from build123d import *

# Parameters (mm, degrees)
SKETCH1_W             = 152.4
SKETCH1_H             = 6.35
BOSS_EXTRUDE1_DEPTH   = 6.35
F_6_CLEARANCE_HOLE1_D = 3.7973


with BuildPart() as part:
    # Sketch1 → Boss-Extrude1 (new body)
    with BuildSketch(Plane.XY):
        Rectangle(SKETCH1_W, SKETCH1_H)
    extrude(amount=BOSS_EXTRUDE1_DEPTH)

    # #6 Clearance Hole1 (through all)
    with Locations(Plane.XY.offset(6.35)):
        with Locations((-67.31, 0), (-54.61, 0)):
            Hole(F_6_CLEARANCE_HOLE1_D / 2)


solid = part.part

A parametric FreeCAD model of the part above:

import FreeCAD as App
import Part
import Sketcher

V = App.Vector
Q = App.Units.Quantity


def add_polygon(sketch, points):
    """Adds a closed chain of lines whose ends are joined by coincident constraints."""
    first, n = sketch.GeometryCount, len(points)
    for a, b in zip(points, points[1:] + points[:1]):
        sketch.addGeometry(Part.LineSegment(App.Vector(*a, 0), App.Vector(*b, 0)), False)
    for i in range(n):
        sketch.addConstraint(Sketcher.Constraint("Coincident", first + i, 2, first + (i + 1) % n, 1))

doc = App.newDocument("Part")
body = doc.addObject("PartDesign::Body", "Body")

# Sketch on XY plane
sketch1 = body.newObject("Sketcher::SketchObject", "Sketch")
sketch1.AttachmentSupport = (doc.getObject("XY_Plane"), [""])
sketch1.MapMode = "FlatFace"
add_polygon(sketch1, [(-76, 3), (-76, -3), (76, -3), (76, 3)])  # lines 0-3
sketch1.addConstraint([
    Sketcher.Constraint("Vertical", 0),
    Sketcher.Constraint("Horizontal", 1),
    Sketcher.Constraint("Vertical", 2),
    Sketcher.Constraint("Horizontal", 3),
    Sketcher.Constraint("Symmetric", 0, 2, 2, 2, -1, 1),
    Sketcher.Constraint("DistanceX", 1, 1, 1, 2, Q("6 in")),
    Sketcher.Constraint("DistanceY", 0, 2, 0, 1, Q("0.25 in")),
])
pad1 = body.newObject("PartDesign::Pad", "Pad")
pad1.Profile = sketch1
pad1.Length = Q("0.25 in")

# Sketch on XY plane
sketch2 = body.newObject("Sketcher::SketchObject", "Sketch001")
sketch2.AttachmentSupport = (doc.getObject("XY_Plane"), [""])
sketch2.MapMode = "FlatFace"
sketch2.AttachmentOffset = App.Placement(V(0, 0, 0.25 * 25.4), App.Rotation())
sketch2.addGeometry([
    Part.Circle(V(-67.3, 0, 0), V(0, 0, 1), 1.9),
    Part.Circle(V(-54.6, 0, 0), V(0, 0, 1), 1.9),
], False)
sketch2.addConstraint([
    Sketcher.Constraint("Equal", 0, 1),
    Sketcher.Constraint("PointOnObject", 0, 3, -1),
    Sketcher.Constraint("PointOnObject", 1, 3, -1),
    Sketcher.Constraint("Diameter", 0, Q("0.1495 in")),
    Sketcher.Constraint("DistanceX", 0, 3, 1, 3, Q("0.5 in")),
    Sketcher.Constraint("DistanceX", 0, 3, -1, 1, Q("2.65 in")),
])
doc.recompute()
hole = body.newObject("PartDesign::Hole", "Hole")
hole.Profile = sketch2
hole.ThreadType = "None"
hole.Diameter = Q("0.1495 in")
hole.DepthType = "ThroughAll"

doc.recompute()
